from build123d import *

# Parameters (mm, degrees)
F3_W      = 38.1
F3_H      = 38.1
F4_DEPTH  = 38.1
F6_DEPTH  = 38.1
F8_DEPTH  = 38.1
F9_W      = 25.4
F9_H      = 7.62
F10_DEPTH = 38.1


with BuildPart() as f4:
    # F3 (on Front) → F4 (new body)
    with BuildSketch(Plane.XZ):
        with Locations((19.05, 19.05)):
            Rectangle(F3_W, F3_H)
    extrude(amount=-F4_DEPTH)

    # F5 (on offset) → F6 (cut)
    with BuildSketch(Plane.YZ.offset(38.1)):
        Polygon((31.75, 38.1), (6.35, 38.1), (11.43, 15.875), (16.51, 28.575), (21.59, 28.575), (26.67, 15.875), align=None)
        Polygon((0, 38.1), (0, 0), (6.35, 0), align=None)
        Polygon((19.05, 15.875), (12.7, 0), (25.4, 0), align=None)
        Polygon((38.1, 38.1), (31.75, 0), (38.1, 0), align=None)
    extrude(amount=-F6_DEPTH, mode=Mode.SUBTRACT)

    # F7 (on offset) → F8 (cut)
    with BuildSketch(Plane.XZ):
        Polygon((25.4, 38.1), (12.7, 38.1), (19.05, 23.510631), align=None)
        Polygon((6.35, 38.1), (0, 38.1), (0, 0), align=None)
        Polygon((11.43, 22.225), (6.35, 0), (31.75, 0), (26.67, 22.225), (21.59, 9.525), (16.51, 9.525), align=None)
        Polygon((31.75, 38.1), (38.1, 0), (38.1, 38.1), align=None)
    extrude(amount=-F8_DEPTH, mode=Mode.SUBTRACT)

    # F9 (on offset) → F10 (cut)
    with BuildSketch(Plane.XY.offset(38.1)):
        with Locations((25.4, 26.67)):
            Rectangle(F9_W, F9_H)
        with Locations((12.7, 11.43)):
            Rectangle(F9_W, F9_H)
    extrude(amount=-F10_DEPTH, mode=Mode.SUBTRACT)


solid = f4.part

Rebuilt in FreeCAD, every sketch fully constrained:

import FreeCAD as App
import Part
import Sketcher

V = App.Vector
Q = App.Units.Quantity

doc = App.newDocument("Part")
body = doc.addObject("PartDesign::Body", "Body")

sketch1 = doc.addObject("Sketcher::SketchObject", "Sketch")
body.addObject(sketch1)
sketch1.AttachmentSupport = (doc.XZ_Plane, [""])
sketch1.MapMode = "FlatFace"
sketch1.addGeometry(Part.LineSegment(V(0, 38, 0), V(0, 0, 0)), False)
sketch1.addGeometry(Part.LineSegment(V(0, 0, 0), V(38, 0, 0)), False)
sketch1.addGeometry(Part.LineSegment(V(38, 0, 0), V(38, 38, 0)), False)
sketch1.addGeometry(Part.LineSegment(V(38, 38, 0), V(0, 38, 0)), False)
sketch1.addConstraint(Sketcher.Constraint("Coincident", 0, 2, 1, 1))
sketch1.addConstraint(Sketcher.Constraint("Coincident", 1, 2, 2, 1))
sketch1.addConstraint(Sketcher.Constraint("Coincident", 2, 2, 3, 1))
sketch1.addConstraint(Sketcher.Constraint("Coincident", 3, 2, 0, 1))
sketch1.addConstraint(Sketcher.Constraint("Vertical", 0))
sketch1.addConstraint(Sketcher.Constraint("Horizontal", 1))
sketch1.addConstraint(Sketcher.Constraint("Vertical", 2))
sketch1.addConstraint(Sketcher.Constraint("Horizontal", 3))
sketch1.addConstraint(Sketcher.Constraint("Coincident", 0, 2, -1, 1))
sketch1.addConstraint(Sketcher.Constraint("Equal", 3, 0))
sketch1.addConstraint(Sketcher.Constraint("DistanceX", 1, 1, 1, 2, Q("1.5 in")))
pad1 = doc.addObject("PartDesign::Pad", "Pad")
body.addObject(pad1)
pad1.Profile = sketch1
pad1.Length = Q("1.5 in")
pad1.Reversed = True

sketch2 = doc.addObject("Sketcher::SketchObject", "Sketch001")
body.addObject(sketch2)
sketch2.AttachmentSupport = (doc.YZ_Plane, [""])
sketch2.MapMode = "FlatFace"
sketch2.AttachmentOffset = App.Placement(V(0, 0, 1.5 * 25.4), App.Rotation())
sketch2.addGeometry(Part.LineSegment(V(32, 38, 0), V(6, 38, 0)), False)
sketch2.addGeometry(Part.LineSegment(V(6, 38, 0), V(11, 16, 0)), False)
sketch2.addGeometry(Part.LineSegment(V(11, 16, 0), V(17, 29, 0)), False)
sketch2.addGeometry(Part.LineSegment(V(17, 29, 0), V(22, 29, 0)), False)
sketch2.addGeometry(Part.LineSegment(V(22, 29, 0), V(27, 16, 0)), False)
sketch2.addGeometry(Part.LineSegment(V(27, 16, 0), V(32, 38, 0)), False)
sketch2.addGeometry(Part.LineSegment(V(0, 38, 0), V(0, 0, 0)), False)
sketch2.addGeometry(Part.LineSegment(V(0, 0, 0), V(6, 0, 0)), False)
sketch2.addGeometry(Part.LineSegment(V(6, 0, 0), V(0, 38, 0)), False)
sketch2.addGeometry(Part.LineSegment(V(19, 16, 0), V(13, 0, 0)), False)
sketch2.addGeometry(Part.LineSegment(V(13, 0, 0), V(25, 0, 0)), False)
sketch2.addGeometry(Part.LineSegment(V(25, 0, 0), V(19, 16, 0)), False)
sketch2.addGeometry(Part.LineSegment(V(38, 38, 0), V(32, 0, 0)), False)
sketch2.addGeometry(Part.LineSegment(V(32, 0, 0), V(38, 0, 0)), False)
sketch2.addGeometry(Part.LineSegment(V(38, 0, 0), V(38, 38, 0)), False)
sketch2.addConstraint(Sketcher.Constraint("Coincident", 0, 2, 1, 1))
sketch2.addConstraint(Sketcher.Constraint("Coincident", 1, 2, 2, 1))
sketch2.addConstraint(Sketcher.Constraint("Coincident", 2, 2, 3, 1))
sketch2.addConstraint(Sketcher.Constraint("Coincident", 3, 2, 4, 1))
sketch2.addConstraint(Sketcher.Constraint("Coincident", 4, 2, 5, 1))
sketch2.addConstraint(Sketcher.Constraint("Coincident", 5, 2, 0, 1))
sketch2.addConstraint(Sketcher.Constraint("Coincident", 6, 2, 7, 1))
sketch2.addConstraint(Sketcher.Constraint("Coincident", 7, 2, 8, 1))
sketch2.addConstraint(Sketcher.Constraint("Coincident", 8, 2, 6, 1))
sketch2.addConstraint(Sketcher.Constraint("Coincident", 9, 2, 10, 1))
sketch2.addConstraint(Sketcher.Constraint("Coincident", 10, 2, 11, 1))
sketch2.addConstraint(Sketcher.Constraint("Coincident", 11, 2, 9, 1))
sketch2.addConstraint(Sketcher.Constraint("Coincident", 12, 2, 13, 1))
sketch2.addConstraint(Sketcher.Constraint("Coincident", 13, 2, 14, 1))
sketch2.addConstraint(Sketcher.Constraint("Coincident", 14, 2, 12, 1))
sketch2.addConstraint(Sketcher.Constraint("Horizontal", 0))
sketch2.addConstraint(Sketcher.Constraint("Horizontal", 3))
sketch2.addConstraint(Sketcher.Constraint("Vertical", 6))
sketch2.addConstraint(Sketcher.Constraint("Horizontal", 7))
sketch2.addConstraint(Sketcher.Constraint("Horizontal", 10))
sketch2.addConstraint(Sketcher.Constraint("Horizontal", 13))
sketch2.addConstraint(Sketcher.Constraint("Vertical", 14))
sketch2.addConstraint(Sketcher.Constraint("Coincident", 6, 2, -1, 1))
sketch2.addConstraint(Sketcher.Constraint("PointOnObject", 9, 2, -1))
sketch2.addConstraint(Sketcher.Constraint("PointOnObject", 12, 2, -1))
sketch2.addConstraint(Sketcher.Constraint("Parallel", 2, 9))
sketch2.addConstraint(Sketcher.Constraint("Parallel", 4, 11))
sketch2.addConstraint(Sketcher.Constraint("Horizontal", 1, 2, 4, 2))
sketch2.addConstraint(Sketcher.Constraint("Horizontal", 5, 2, 8, 2))
sketch2.addConstraint(Sketcher.Constraint("Horizontal", 4, 2, 11, 2))
sketch2.addConstraint(Sketcher.Constraint("Horizontal", 8, 2, 14, 2))
sketch2.addConstraint(Sketcher.Constraint("Vertical", 0, 2, 7, 2))
sketch2.addConstraint(Sketcher.Constraint("Vertical", 5, 2, 12, 2))
sketch2.addConstraint(Sketcher.Constraint("Equal", 7, 13))
sketch2.addConstraint(Sketcher.Constraint("Equal", 2, 4))
sketch2.addConstraint(Sketcher.Constraint("Equal", 1, 5))
sketch2.addConstraint(Sketcher.Constraint("DistanceX", 0, 2, 0, 1, Q("1 in")))
sketch2.addConstraint(Sketcher.Constraint("DistanceX", 3, 1, 3, 2, Q("0.2 in")))
sketch2.addConstraint(Sketcher.Constraint("DistanceX", 10, 1, 10, 2, Q("0.5 in")))
sketch2.addConstraint(Sketcher.Constraint("DistanceY", 6, 2, 6, 1, Q("1.5 in")))
sketch2.addConstraint(Sketcher.Constraint("DistanceX", -1, 1, 10, 2, Q("1 in")))
sketch2.addConstraint(Sketcher.Constraint("DistanceX", 9, 2, 13, 2, Q("1 in")))
sketch2.addConstraint(Sketcher.Constraint("DistanceX", 0, 2, 1, 2, Q("0.2 in")))
sketch2.addConstraint(Sketcher.Constraint("DistanceY", 1, 2, 2, 2, Q("0.5 in")))
pocket1 = doc.addObject("PartDesign::Pocket", "Pocket")
body.addObject(pocket1)
pocket1.Profile = sketch2
pocket1.Length = Q("1.5 in")

sketch3 = doc.addObject("Sketcher::SketchObject", "Sketch002")
body.addObject(sketch3)
sketch3.AttachmentSupport = (doc.XZ_Plane, [""])
sketch3.MapMode = "FlatFace"
sketch3.addGeometry(Part.LineSegment(V(25, 38, 0), V(13, 38, 0)), False)
sketch3.addGeometry(Part.LineSegment(V(13, 38, 0), V(19, 24, 0)), False)
sketch3.addGeometry(Part.LineSegment(V(19, 24, 0), V(25, 38, 0)), False)
sketch3.addGeometry(Part.LineSegment(V(6, 38, 0), V(0, 38, 0)), False)
sketch3.addGeometry(Part.LineSegment(V(0, 38, 0), V(0, 0, 0)), False)
sketch3.addGeometry(Part.LineSegment(V(0, 0, 0), V(6, 38, 0)), False)
sketch3.addGeometry(Part.LineSegment(V(11, 22, 0), V(6, 0, 0)), False)
sketch3.addGeometry(Part.LineSegment(V(6, 0, 0), V(32, 0, 0)), False)
sketch3.addGeometry(Part.LineSegment(V(32, 0, 0), V(27, 22, 0)), False)
sketch3.addGeometry(Part.LineSegment(V(27, 22, 0), V(22, 10, 0)), False)
sketch3.addGeometry(Part.LineSegment(V(22, 10, 0), V(17, 10, 0)), False)
sketch3.addGeometry(Part.LineSegment(V(17, 10, 0), V(11, 22, 0)), False)
sketch3.addGeometry(Part.LineSegment(V(32, 38, 0), V(38, 0, 0)), False)
sketch3.addGeometry(Part.LineSegment(V(38, 0, 0), V(38, 38, 0)), False)
sketch3.addGeometry(Part.LineSegment(V(38, 38, 0), V(32, 38, 0)), False)
sketch3.addConstraint(Sketcher.Constraint("Coincident", 0, 2, 1, 1))
sketch3.addConstraint(Sketcher.Constraint("Coincident", 1, 2, 2, 1))
sketch3.addConstraint(Sketcher.Constraint("Coincident", 2, 2, 0, 1))
sketch3.addConstraint(Sketcher.Constraint("Coincident", 3, 2, 4, 1))
sketch3.addConstraint(Sketcher.Constraint("Coincident", 4, 2, 5, 1))
sketch3.addConstraint(Sketcher.Constraint("Coincident", 5, 2, 3, 1))
sketch3.addConstraint(Sketcher.Constraint("Coincident", 6, 2, 7, 1))
sketch3.addConstraint(Sketcher.Constraint("Coincident", 7, 2, 8, 1))
sketch3.addConstraint(Sketcher.Constraint("Coincident", 8, 2, 9, 1))
sketch3.addConstraint(Sketcher.Constraint("Coincident", 9, 2, 10, 1))
sketch3.addConstraint(Sketcher.Constraint("Coincident", 10, 2, 11, 1))
sketch3.addConstraint(Sketcher.Constraint("Coincident", 11, 2, 6, 1))
sketch3.addConstraint(Sketcher.Constraint("Coincident", 12, 2, 13, 1))
sketch3.addConstraint(Sketcher.Constraint("Coincident", 13, 2, 14, 1))
sketch3.addConstraint(Sketcher.Constraint("Coincident", 14, 2, 12, 1))
sketch3.addConstraint(Sketcher.Constraint("Horizontal", 0))
sketch3.addConstraint(Sketcher.Constraint("Horizontal", 3))
sketch3.addConstraint(Sketcher.Constraint("Vertical", 4))
sketch3.addConstraint(Sketcher.Constraint("Horizontal", 7))
sketch3.addConstraint(Sketcher.Constraint("Horizontal", 10))
sketch3.addConstraint(Sketcher.Constraint("Vertical", 13))
sketch3.addConstraint(Sketcher.Constraint("Horizontal", 14))
sketch3.addConstraint(Sketcher.Constraint("Coincident", 4, 2, -1, 1))
sketch3.addConstraint(Sketcher.Constraint("PointOnObject", 6, 2, -1))
sketch3.addConstraint(Sketcher.Constraint("PointOnObject", 12, 2, -1))
sketch3.addConstraint(Sketcher.Constraint("Horizontal", 2, 2, 3, 2))
sketch3.addConstraint(Sketcher.Constraint("Horizontal", 8, 2, 11, 2))
sketch3.addConstraint(Sketcher.Constraint("Horizontal", 5, 2, 13, 2))
sketch3.addConstraint(Sketcher.Constraint("Vertical", 5, 2, 6, 2))
sketch3.addConstraint(Sketcher.Constraint("Vertical", 7, 2, 14, 2))
sketch3.addConstraint(Sketcher.Constraint("Equal", 3, 14))
sketch3.addConstraint(Sketcher.Constraint("Equal", 1, 2))
sketch3.addConstraint(Sketcher.Constraint("Equal", 6, 8))
sketch3.addConstraint(Sketcher.Constraint("Equal", 9, 11))
sketch3.addConstraint(Sketcher.Constraint("DistanceX", 7, 1, 7, 2, Q("1 in")))
sketch3.addConstraint(Sketcher.Constraint("DistanceX", 0, 2, 0, 1, Q("0.5 in")))
sketch3.addConstraint(Sketcher.Constraint("DistanceX", 10, 2, 10, 1, Q("0.2 in")))
sketch3.addConstraint(Sketcher.Constraint("DistanceY", 4, 2, 4, 1, Q("1.5 in")))
sketch3.addConstraint(Sketcher.Constraint("DistanceX", -1, 1, 2, 2, Q("1 in")))
sketch3.addConstraint(Sketcher.Constraint("DistanceX", 0, 2, 13, 2, Q("1 in")))
sketch3.addConstraint(Sketcher.Constraint("DistanceX", 1, 2, 8, 2, Q("0.3 in")))
sketch3.addConstraint(Sketcher.Constraint("DistanceY", 9, 2, 8, 2, Q("0.5 in")))
sketch3.addConstraint(Sketcher.Constraint("DistanceY", -1, 1, 8, 2, Q("0.875 in")))
sketch3.addConstraint(Sketcher.Constraint("DistanceY", -1, 1, 1, 2, 23.510631))
pocket2 = doc.addObject("PartDesign::Pocket", "Pocket001")
body.addObject(pocket2)
pocket2.Profile = sketch3
pocket2.Length = Q("1.5 in")

sketch4 = doc.addObject("Sketcher::SketchObject", "Sketch003")
body.addObject(sketch4)
sketch4.AttachmentSupport = (doc.XY_Plane, [""])
sketch4.MapMode = "FlatFace"
sketch4.AttachmentOffset = App.Placement(V(0, 0, 1.5 * 25.4), App.Rotation())
sketch4.addGeometry(Part.LineSegment(V(13, 30, 0), V(13, 23, 0)), False)
sketch4.addGeometry(Part.LineSegment(V(13, 23, 0), V(38, 23, 0)), False)
sketch4.addGeometry(Part.LineSegment(V(38, 23, 0), V(38, 30, 0)), False)
sketch4.addGeometry(Part.LineSegment(V(38, 30, 0), V(13, 30, 0)), False)
sketch4.addGeometry(Part.LineSegment(V(0, 15, 0), V(0, 8, 0)), False)
sketch4.addGeometry(Part.LineSegment(V(0, 8, 0), V(25, 8, 0)), False)
sketch4.addGeometry(Part.LineSegment(V(25, 8, 0), V(25, 15, 0)), False)
sketch4.addGeometry(Part.LineSegment(V(25, 15, 0), V(0, 15, 0)), False)
sketch4.addConstraint(Sketcher.Constraint("Coincident", 0, 2, 1, 1))
sketch4.addConstraint(Sketcher.Constraint("Coincident", 1, 2, 2, 1))
sketch4.addConstraint(Sketcher.Constraint("Coincident", 2, 2, 3, 1))
sketch4.addConstraint(Sketcher.Constraint("Coincident", 3, 2, 0, 1))
sketch4.addConstraint(Sketcher.Constraint("Coincident", 4, 2, 5, 1))
sketch4.addConstraint(Sketcher.Constraint("Coincident", 5, 2, 6, 1))
sketch4.addConstraint(Sketcher.Constraint("Coincident", 6, 2, 7, 1))
sketch4.addConstraint(Sketcher.Constraint("Coincident", 7, 2, 4, 1))
sketch4.addConstraint(Sketcher.Constraint("Vertical", 0))
sketch4.addConstraint(Sketcher.Constraint("Horizontal", 1))
sketch4.addConstraint(Sketcher.Constraint("Vertical", 2))
sketch4.addConstraint(Sketcher.Constraint("Horizontal", 3))
sketch4.addConstraint(Sketcher.Constraint("Vertical", 4))
sketch4.addConstraint(Sketcher.Constraint("Horizontal", 5))
sketch4.addConstraint(Sketcher.Constraint("Vertical", 6))
sketch4.addConstraint(Sketcher.Constraint("Horizontal", 7))
sketch4.addConstraint(Sketcher.Constraint("PointOnObject", 4, 2, -2))
sketch4.addConstraint(Sketcher.Constraint("Equal", 3, 5))
sketch4.addConstraint(Sketcher.Constraint("Equal", 2, 4))
sketch4.addConstraint(Sketcher.Constraint("DistanceX", 1, 1, 1, 2, Q("1 in")))
sketch4.addConstraint(Sketcher.Constraint("DistanceY", 0, 2, 0, 1, Q("0.3 in")))
sketch4.addConstraint(Sketcher.Constraint("DistanceX", -1, 1, 0, 2, Q("0.5 in")))
sketch4.addConstraint(Sketcher.Constraint("DistanceY", -1, 1, 0, 2, Q("0.9 in")))
sketch4.addConstraint(Sketcher.Constraint("DistanceY", -1, 1, 4, 2, Q("0.3 in")))
pocket3 = doc.addObject("PartDesign::Pocket", "Pocket002")
body.addObject(pocket3)
pocket3.Profile = sketch4
pocket3.Length = Q("1.5 in")

doc.recompute()
